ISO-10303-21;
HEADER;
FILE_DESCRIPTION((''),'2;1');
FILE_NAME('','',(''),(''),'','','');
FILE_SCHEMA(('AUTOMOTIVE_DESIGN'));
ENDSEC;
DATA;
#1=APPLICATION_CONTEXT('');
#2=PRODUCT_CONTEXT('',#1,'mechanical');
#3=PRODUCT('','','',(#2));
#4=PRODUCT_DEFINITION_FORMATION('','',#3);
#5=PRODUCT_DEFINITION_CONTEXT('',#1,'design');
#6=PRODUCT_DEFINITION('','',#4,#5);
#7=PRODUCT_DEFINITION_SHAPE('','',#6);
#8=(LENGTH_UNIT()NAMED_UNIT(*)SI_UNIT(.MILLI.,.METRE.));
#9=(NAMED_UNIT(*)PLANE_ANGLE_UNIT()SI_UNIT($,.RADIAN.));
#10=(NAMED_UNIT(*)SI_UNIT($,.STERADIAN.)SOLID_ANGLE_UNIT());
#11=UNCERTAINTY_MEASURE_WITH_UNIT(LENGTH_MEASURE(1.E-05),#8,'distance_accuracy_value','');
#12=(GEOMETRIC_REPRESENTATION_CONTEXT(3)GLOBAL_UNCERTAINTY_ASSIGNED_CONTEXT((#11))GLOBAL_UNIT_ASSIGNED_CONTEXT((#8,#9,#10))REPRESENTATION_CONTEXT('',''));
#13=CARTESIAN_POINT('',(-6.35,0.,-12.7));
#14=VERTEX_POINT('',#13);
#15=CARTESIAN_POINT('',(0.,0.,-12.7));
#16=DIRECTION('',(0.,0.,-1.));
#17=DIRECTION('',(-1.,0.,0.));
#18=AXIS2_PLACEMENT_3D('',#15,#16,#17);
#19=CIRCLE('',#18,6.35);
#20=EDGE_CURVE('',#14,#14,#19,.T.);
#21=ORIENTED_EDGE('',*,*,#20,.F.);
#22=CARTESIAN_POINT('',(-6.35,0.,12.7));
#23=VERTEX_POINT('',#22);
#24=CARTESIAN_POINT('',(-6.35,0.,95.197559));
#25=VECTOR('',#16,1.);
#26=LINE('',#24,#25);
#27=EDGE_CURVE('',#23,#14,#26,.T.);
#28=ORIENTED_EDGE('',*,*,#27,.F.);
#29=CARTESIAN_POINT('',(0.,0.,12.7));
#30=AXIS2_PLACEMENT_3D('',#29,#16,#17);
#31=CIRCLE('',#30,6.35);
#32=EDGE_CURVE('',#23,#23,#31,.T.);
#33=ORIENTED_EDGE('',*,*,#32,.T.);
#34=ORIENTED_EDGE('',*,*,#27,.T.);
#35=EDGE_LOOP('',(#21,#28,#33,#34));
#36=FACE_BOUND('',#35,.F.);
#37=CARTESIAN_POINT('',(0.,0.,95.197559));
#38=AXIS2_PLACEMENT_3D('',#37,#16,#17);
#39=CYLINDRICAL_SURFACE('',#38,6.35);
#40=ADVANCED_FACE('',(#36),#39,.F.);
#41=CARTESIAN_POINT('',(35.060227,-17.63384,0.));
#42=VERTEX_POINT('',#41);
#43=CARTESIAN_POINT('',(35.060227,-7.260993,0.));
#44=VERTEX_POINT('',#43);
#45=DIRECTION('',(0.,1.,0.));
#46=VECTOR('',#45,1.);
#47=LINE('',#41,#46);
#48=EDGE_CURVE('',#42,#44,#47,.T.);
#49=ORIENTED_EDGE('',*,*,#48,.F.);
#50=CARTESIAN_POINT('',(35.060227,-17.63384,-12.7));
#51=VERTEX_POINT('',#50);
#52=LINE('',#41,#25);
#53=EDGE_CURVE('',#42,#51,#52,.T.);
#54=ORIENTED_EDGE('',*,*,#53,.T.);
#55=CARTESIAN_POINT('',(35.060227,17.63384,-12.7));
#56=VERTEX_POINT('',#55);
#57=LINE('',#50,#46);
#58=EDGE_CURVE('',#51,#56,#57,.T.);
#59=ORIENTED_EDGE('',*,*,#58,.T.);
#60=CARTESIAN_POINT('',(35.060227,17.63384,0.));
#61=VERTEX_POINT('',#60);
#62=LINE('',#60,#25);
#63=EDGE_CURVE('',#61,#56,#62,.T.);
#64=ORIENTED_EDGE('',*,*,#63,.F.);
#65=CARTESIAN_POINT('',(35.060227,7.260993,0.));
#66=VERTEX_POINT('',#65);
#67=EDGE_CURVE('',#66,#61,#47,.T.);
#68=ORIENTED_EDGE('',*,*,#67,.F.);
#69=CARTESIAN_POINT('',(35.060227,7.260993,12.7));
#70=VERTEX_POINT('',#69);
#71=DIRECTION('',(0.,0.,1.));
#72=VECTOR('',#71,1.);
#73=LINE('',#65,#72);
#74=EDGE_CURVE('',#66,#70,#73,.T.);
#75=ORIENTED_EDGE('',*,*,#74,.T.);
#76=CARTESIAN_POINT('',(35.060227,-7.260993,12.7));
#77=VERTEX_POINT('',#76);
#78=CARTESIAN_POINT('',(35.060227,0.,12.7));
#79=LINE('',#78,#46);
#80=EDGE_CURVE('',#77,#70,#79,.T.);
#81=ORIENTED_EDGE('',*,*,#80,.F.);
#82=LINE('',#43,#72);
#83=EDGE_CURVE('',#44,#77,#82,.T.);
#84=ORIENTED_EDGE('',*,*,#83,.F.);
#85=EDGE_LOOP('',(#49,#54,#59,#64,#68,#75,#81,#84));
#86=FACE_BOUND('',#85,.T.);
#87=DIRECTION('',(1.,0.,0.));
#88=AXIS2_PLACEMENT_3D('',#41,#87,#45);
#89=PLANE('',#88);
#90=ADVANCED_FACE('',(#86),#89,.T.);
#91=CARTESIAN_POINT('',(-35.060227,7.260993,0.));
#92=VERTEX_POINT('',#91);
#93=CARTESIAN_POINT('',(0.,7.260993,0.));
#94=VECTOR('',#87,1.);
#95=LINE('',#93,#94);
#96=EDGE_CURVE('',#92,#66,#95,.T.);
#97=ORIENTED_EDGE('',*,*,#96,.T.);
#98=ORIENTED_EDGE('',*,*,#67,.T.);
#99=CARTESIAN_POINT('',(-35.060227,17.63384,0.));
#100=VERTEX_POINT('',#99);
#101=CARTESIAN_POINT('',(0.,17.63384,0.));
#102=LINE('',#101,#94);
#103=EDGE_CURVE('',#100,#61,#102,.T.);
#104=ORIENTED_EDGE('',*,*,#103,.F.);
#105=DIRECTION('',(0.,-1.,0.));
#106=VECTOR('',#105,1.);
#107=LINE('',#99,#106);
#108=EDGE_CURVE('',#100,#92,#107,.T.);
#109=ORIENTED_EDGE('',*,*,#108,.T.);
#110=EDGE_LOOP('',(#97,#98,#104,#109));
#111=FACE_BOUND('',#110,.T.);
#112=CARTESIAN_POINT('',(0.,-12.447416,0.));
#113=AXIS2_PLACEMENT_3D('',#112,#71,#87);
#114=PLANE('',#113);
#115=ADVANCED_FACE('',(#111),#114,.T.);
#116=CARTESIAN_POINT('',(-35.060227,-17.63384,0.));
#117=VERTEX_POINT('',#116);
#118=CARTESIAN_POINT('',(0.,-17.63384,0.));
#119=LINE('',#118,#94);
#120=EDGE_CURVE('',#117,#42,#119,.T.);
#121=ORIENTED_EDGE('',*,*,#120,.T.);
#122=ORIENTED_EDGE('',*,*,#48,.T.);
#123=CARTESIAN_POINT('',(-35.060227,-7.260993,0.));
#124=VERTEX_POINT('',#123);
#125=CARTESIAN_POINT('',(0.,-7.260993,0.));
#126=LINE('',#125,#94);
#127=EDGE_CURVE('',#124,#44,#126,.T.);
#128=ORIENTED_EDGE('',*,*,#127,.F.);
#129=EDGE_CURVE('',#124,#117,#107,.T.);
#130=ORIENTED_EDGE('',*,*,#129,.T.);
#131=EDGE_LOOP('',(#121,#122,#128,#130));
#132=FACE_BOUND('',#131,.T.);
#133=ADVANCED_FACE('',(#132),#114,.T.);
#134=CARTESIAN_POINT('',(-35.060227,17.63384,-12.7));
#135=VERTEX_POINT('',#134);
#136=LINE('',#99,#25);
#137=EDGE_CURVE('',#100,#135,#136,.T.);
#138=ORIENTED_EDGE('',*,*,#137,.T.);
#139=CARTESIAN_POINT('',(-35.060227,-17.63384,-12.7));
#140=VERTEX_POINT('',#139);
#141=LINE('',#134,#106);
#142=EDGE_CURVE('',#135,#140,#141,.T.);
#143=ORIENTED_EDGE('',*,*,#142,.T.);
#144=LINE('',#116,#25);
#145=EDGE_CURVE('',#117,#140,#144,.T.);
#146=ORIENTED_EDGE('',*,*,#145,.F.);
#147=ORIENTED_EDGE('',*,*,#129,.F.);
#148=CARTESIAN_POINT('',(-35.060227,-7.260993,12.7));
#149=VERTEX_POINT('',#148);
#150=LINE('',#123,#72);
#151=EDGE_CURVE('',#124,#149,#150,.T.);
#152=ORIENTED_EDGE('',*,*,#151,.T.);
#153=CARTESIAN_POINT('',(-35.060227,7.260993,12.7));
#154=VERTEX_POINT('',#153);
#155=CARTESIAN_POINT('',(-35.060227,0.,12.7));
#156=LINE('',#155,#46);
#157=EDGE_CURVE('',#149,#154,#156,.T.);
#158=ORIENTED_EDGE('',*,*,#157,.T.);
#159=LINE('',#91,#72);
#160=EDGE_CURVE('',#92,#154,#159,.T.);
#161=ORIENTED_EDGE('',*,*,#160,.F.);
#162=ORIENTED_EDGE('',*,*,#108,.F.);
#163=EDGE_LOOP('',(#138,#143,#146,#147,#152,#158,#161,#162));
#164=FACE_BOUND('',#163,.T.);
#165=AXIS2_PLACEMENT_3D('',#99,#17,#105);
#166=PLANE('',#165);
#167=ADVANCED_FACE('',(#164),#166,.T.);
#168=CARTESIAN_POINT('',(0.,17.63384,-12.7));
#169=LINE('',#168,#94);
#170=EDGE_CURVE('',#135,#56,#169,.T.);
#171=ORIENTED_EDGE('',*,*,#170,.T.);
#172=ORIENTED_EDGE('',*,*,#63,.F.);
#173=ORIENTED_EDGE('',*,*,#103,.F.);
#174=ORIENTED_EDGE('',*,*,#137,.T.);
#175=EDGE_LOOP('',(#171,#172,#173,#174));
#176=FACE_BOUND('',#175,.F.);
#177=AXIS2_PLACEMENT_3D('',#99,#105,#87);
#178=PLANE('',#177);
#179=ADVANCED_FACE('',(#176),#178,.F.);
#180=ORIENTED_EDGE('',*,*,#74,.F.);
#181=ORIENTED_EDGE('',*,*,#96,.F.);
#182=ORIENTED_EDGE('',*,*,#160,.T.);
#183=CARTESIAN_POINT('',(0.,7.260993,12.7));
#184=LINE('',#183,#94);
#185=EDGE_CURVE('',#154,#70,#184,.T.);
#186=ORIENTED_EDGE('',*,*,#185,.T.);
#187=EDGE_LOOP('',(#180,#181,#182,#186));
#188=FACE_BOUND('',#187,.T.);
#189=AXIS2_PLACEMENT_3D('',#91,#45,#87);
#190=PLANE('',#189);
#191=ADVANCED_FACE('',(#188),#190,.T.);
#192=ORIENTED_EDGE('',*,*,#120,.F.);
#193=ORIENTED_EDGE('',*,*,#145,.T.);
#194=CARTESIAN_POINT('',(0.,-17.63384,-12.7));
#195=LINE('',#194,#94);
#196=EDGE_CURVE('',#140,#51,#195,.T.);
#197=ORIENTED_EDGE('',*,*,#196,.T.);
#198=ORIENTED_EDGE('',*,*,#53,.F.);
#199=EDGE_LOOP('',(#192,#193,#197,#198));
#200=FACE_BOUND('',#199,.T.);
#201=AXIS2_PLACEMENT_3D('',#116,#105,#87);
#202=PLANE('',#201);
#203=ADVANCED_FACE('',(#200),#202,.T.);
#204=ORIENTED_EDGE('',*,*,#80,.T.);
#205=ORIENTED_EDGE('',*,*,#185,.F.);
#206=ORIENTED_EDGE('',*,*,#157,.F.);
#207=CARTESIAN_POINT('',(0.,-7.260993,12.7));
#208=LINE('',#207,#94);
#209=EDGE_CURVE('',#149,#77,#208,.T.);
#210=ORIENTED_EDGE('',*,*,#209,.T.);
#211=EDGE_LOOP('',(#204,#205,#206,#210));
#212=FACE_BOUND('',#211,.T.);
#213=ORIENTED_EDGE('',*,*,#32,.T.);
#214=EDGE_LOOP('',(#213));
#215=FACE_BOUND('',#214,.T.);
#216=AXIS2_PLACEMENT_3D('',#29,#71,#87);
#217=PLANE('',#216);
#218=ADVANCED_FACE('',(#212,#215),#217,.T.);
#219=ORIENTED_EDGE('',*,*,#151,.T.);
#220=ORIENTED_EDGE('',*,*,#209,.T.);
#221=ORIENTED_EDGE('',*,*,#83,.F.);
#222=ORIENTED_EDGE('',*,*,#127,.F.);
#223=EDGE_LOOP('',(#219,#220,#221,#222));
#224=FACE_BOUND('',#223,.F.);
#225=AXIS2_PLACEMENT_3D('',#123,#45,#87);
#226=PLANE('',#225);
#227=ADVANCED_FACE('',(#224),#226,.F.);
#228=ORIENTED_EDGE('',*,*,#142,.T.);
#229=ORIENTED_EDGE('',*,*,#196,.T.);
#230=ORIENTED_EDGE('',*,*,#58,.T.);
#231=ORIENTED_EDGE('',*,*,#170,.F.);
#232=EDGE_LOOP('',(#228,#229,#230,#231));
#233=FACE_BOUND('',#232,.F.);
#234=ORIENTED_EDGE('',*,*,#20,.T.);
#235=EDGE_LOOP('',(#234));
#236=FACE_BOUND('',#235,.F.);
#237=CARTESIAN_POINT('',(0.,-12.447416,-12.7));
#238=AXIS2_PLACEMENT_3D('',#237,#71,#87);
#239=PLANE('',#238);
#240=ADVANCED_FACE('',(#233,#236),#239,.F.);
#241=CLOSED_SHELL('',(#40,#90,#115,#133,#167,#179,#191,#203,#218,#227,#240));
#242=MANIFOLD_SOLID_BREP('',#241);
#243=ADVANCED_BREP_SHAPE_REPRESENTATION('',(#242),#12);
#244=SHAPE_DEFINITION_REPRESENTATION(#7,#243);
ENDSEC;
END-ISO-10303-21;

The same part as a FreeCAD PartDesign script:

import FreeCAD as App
import Part
import Sketcher

V = App.Vector
Q = App.Units.Quantity

doc = App.newDocument("Part")
body = doc.addObject("PartDesign::Body", "Body")

# Sketch on XY plane
sketch1 = body.newObject("Sketcher::SketchObject", "Sketch")
sketch1.AttachmentSupport = (doc.getObject("XY_Plane"), [""])
sketch1.MapMode = "FlatFace"
sketch1.addGeometry([
    Part.LineSegment(V(-35, -18, 0), V(35, -18, 0)),
    Part.LineSegment(V(35, -18, 0), V(35, 18, 0)),
    Part.LineSegment(V(35, 18, 0), V(-35, 18, 0)),
    Part.LineSegment(V(-35, 18, 0), V(-35, -18, 0)),
], False)
sketch1.addConstraint([
    Sketcher.Constraint("Coincident", 0, 2, 1, 1),
    Sketcher.Constraint("Coincident", 1, 2, 2, 1),
    Sketcher.Constraint("Coincident", 2, 2, 3, 1),
    Sketcher.Constraint("Coincident", 3, 2, 0, 1),
    Sketcher.Constraint("Horizontal", 0),
    Sketcher.Constraint("Vertical", 1),
    Sketcher.Constraint("Horizontal", 2),
    Sketcher.Constraint("Vertical", 3),
    Sketcher.Constraint("Symmetric", 0, 2, 2, 2, -1, 1),
    Sketcher.Constraint("DistanceY", 1, 1, 1, 2, Q("35.267679 mm")),
    Sketcher.Constraint("DistanceX", 0, 1, 0, 2, Q("70.120454 mm")),
])
pad1 = body.newObject("PartDesign::Pad", "Pad")
pad1.Profile = sketch1
pad1.Length = Q("0.5 in")
pad1.Reversed = True

# Sketch on XY plane
sketch2 = body.newObject("Sketcher::SketchObject", "Sketch001")
sketch2.AttachmentSupport = (doc.getObject("XY_Plane"), [""])
sketch2.MapMode = "FlatFace"
sketch2.addGeometry([
    Part.LineSegment(V(-35, 7, 0), V(-35, -7, 0)),
    Part.LineSegment(V(-35, -7, 0), V(35, -7, 0)),
    Part.LineSegment(V(35, -7, 0), V(35, 7, 0)),
    Part.LineSegment(V(35, 7, 0), V(-35, 7, 0)),
], False)
sketch2.addConstraint([
    Sketcher.Constraint("Coincident", 0, 2, 1, 1),
    Sketcher.Constraint("Coincident", 1, 2, 2, 1),
    Sketcher.Constraint("Coincident", 2, 2, 3, 1),
    Sketcher.Constraint("Coincident", 3, 2, 0, 1),
    Sketcher.Constraint("Vertical", 0),
    Sketcher.Constraint("Horizontal", 1),
    Sketcher.Constraint("Vertical", 2),
    Sketcher.Constraint("Horizontal", 3),
    Sketcher.Constraint("Symmetric", 0, 2, 2, 2, -1, 1),
    Sketcher.Constraint("DistanceX", 1, 1, 1, 2, Q("70.120454 mm")),
    Sketcher.Constraint("DistanceY", 0, 2, 0, 1, Q("14.521986 mm")),
])
pad2 = body.newObject("PartDesign::Pad", "Pad001")
pad2.Profile = sketch2
pad2.Length = Q("0.5 in")

# Sketch on XY plane
sketch3 = body.newObject("Sketcher::SketchObject", "Sketch002")
sketch3.AttachmentSupport = (doc.getObject("XY_Plane"), [""])
sketch3.MapMode = "FlatFace"
sketch3.AttachmentOffset = App.Placement(V(0, 0, 0.5 * 25.4), App.Rotation())
sketch3.addGeometry(Part.Circle(V(0, 0, 0), V(0, 0, 1), 6), False)
sketch3.addConstraint([
    Sketcher.Constraint("Coincident", 0, 3, -1, 1),
    Sketcher.Constraint("Diameter", 0, Q("0.5 in")),
])
doc.recompute()
hole = body.newObject("PartDesign::Hole", "Hole")
hole.Profile = sketch3
hole.ThreadType = "None"
hole.Diameter = Q("0.5 in")
hole.DepthType = "ThroughAll"

doc.recompute()
